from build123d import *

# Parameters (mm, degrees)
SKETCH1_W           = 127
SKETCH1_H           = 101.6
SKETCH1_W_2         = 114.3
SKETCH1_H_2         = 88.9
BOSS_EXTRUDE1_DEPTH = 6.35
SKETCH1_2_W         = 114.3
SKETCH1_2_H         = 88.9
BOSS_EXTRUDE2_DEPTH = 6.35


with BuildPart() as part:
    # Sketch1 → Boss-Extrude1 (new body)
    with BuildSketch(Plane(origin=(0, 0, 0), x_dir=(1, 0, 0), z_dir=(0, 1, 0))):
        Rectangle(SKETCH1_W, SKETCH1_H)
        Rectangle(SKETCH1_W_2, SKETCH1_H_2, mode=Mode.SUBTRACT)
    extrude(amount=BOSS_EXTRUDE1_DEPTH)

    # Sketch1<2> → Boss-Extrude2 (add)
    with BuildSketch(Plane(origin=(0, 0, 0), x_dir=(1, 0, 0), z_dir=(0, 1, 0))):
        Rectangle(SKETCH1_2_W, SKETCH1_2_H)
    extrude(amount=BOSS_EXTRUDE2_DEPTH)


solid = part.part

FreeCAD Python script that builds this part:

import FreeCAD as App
import Part
import Sketcher
from FreeCAD import Vector
Q = App.Units.Quantity


def add_polygon(sketch, points):
    """Adds a closed chain of lines whose ends are joined by coincident constraints."""
    first, n = sketch.GeometryCount, len(points)
    for a, b in zip(points, points[1:] + points[:1]):
        sketch.addGeometry(Part.LineSegment(App.Vector(*a, 0), App.Vector(*b, 0)), False)
    for i in range(n):
        sketch.addConstraint(Sketcher.Constraint("Coincident", first + i, 2, first + (i + 1) % n, 1))

doc = App.newDocument("Part")
params = doc.addObject("Spreadsheet::Sheet", "Params")
for row, (alias, value) in enumerate([
    ("sketch1_width", "5 in"),
    ("sketch1_height", "4 in"),
    ("sketch1_width2", "4.5 in"),
    ("sketch1_height2", "3.5 in"),
    ("pad1_length", "0.25 in"),
    ("sketch2_width", "4.5 in"),
    ("sketch2_height", "3.5 in"),
    ("pad2_length", "0.25 in"),
], start=1):
    params.set(f"A{row}", alias)
    params.set(f"B{row}", "=" + value)
    params.setAlias(f"B{row}", alias)

body = doc.addObject("PartDesign::Body", "Body")

# Sketch on XZ plane
sketch1 = body.newObject("Sketcher::SketchObject", "Sketch")
sketch1.AttachmentSupport = (doc.getObject("XZ_Plane"), [""])
sketch1.MapMode = "FlatFace"
add_polygon(sketch1, [(-64, -51), (-64, 51), (64, 51), (64, -51)])  # lines 0-3
add_polygon(sketch1, [(57, 44), (-57, 44), (-57, -44), (57, -44)])  # lines 4-7
sketch1.addConstraint(Sketcher.Constraint("Vertical", 0))
sketch1.addConstraint(Sketcher.Constraint("Horizontal", 1))
sketch1.addConstraint(Sketcher.Constraint("Vertical", 2))
sketch1.addConstraint(Sketcher.Constraint("Horizontal", 3))
sketch1.addConstraint(Sketcher.Constraint("Horizontal", 4))
sketch1.addConstraint(Sketcher.Constraint("Vertical", 5))
sketch1.addConstraint(Sketcher.Constraint("Horizontal", 6))
sketch1.addConstraint(Sketcher.Constraint("Vertical", 7))
sketch1.addConstraint(Sketcher.Constraint("Symmetric", 0, 2, 2, 2, -1, 1))
sketch1.addConstraint(Sketcher.Constraint("Symmetric", 4, 2, 6, 2, -1, 1))
sketch1.addConstraint(Sketcher.Constraint("DistanceX", 1, 1, 1, 2, Q("5 in")))
sketch1.addConstraint(Sketcher.Constraint("DistanceY", 0, 1, 0, 2, Q("4 in")))
sketch1.addConstraint(Sketcher.Constraint("DistanceX", 4, 2, 4, 1, Q("4.5 in")))
sketch1.addConstraint(Sketcher.Constraint("DistanceY", 5, 2, 5, 1, Q("3.5 in")))
sketch1.setExpression("Constraints[18]", "Params.sketch1_width")
sketch1.setExpression("Constraints[19]", "Params.sketch1_height")
sketch1.setExpression("Constraints[20]", "Params.sketch1_width2")
sketch1.setExpression("Constraints[21]", "Params.sketch1_height2")
pad1 = body.newObject("PartDesign::Pad", "Pad")
pad1.Profile = sketch1
pad1.setExpression("Length", "Params.pad1_length")
pad1.Reversed = True

# Sketch on XZ plane
sketch2 = body.newObject("Sketcher::SketchObject", "Sketch001")
sketch2.AttachmentSupport = (doc.getObject("XZ_Plane"), [""])
sketch2.MapMode = "FlatFace"
add_polygon(sketch2, [(-57, -44), (-57, 44), (57, 44), (57, -44)])  # lines 0-3
sketch2.addConstraint(Sketcher.Constraint("Vertical", 0))
sketch2.addConstraint(Sketcher.Constraint("Horizontal", 1))
sketch2.addConstraint(Sketcher.Constraint("Vertical", 2))
sketch2.addConstraint(Sketcher.Constraint("Horizontal", 3))
sketch2.addConstraint(Sketcher.Constraint("Symmetric", 0, 2, 2, 2, -1, 1))
sketch2.addConstraint(Sketcher.Constraint("DistanceX", 1, 1, 1, 2, Q("4.5 in")))
sketch2.addConstraint(Sketcher.Constraint("DistanceY", 0, 1, 0, 2, Q("3.5 in")))
sketch2.setExpression("Constraints[9]", "Params.sketch2_width")
sketch2.setExpression("Constraints[10]", "Params.sketch2_height")
pad2 = body.newObject("PartDesign::Pad", "Pad001")
pad2.Profile = sketch2
pad2.setExpression("Length", "Params.pad2_length")
pad2.Reversed = True

doc.recompute()
